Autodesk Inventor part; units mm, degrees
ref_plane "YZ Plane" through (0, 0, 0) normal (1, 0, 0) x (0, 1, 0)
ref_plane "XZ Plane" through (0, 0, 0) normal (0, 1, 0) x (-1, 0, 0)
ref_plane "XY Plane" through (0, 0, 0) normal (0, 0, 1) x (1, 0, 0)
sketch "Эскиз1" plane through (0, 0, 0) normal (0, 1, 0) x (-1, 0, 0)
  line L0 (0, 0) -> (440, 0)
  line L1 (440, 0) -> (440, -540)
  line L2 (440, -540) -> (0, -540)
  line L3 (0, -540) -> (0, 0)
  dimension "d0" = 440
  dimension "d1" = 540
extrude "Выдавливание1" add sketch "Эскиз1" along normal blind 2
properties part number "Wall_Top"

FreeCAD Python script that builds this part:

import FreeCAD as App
import Part
import Sketcher
from FreeCAD import Vector


def add_polygon(sketch, points):
    """Adds a closed chain of lines whose ends are joined by coincident constraints."""
    first, n = sketch.GeometryCount, len(points)
    for a, b in zip(points, points[1:] + points[:1]):
        sketch.addGeometry(Part.LineSegment(App.Vector(*a, 0), App.Vector(*b, 0)), False)
    for i in range(n):
        sketch.addConstraint(Sketcher.Constraint("Coincident", first + i, 2, first + (i + 1) % n, 1))

doc = App.newDocument("Part")
body = doc.addObject("PartDesign::Body", "Body")

# Sketch on XZ plane
sketch1 = body.newObject("Sketcher::SketchObject", "Sketch")
sketch1.AttachmentSupport = (doc.getObject("XZ_Plane"), [""])
sketch1.MapMode = "FlatFace"
add_polygon(sketch1, [(-440, 0), (0, 0), (0, -540), (-440, -540)])  # lines 0-3
sketch1.addConstraint([
    Sketcher.Constraint("Horizontal", 0),
    Sketcher.Constraint("Vertical", 1),
    Sketcher.Constraint("Horizontal", 2),
    Sketcher.Constraint("Vertical", 3),
    Sketcher.Constraint("Coincident", 0, 2, -1, 1),
    Sketcher.Constraint("DistanceX", 0, 1, 0, 2, 440.0),
    Sketcher.Constraint("DistanceY", 1, 2, 1, 1, 540.0),
])
pad1 = body.newObject("PartDesign::Pad", "Pad")
pad1.Profile = sketch1
pad1.Length = 2
pad1.Reversed = True

doc.recompute()
